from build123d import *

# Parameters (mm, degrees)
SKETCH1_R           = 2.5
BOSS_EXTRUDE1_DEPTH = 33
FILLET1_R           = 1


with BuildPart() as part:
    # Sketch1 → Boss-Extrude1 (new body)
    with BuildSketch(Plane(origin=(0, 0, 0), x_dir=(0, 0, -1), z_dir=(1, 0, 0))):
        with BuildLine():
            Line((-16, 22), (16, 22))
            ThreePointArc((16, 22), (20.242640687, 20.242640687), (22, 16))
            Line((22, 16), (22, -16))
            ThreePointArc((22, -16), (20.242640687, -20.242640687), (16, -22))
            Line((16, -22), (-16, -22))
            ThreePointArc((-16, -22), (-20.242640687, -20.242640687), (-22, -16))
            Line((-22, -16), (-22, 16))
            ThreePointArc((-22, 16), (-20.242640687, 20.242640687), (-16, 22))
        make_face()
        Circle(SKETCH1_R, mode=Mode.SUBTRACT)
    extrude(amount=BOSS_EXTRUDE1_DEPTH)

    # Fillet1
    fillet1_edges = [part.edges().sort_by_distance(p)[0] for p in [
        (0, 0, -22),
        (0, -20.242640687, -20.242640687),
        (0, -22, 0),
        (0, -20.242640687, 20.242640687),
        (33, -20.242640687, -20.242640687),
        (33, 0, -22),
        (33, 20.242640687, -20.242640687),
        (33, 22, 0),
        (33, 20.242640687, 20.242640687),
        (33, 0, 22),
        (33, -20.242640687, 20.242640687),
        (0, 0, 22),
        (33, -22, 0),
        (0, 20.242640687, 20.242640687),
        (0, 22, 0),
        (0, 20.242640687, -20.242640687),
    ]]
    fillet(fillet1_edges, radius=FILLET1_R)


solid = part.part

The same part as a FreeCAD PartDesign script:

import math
import FreeCAD as App
import Part
import Sketcher
from FreeCAD import Vector
Q = App.Units.Quantity


def edges_at(feature, points):
    """Names of the edges that pass closest to the given points."""
    edges = feature.Shape.Edges
    near = lambda p: min(range(len(edges)), key=lambda i: edges[i].distToShape(Part.Vertex(*p))[0])
    return sorted({f"Edge{near(p) + 1}" for p in points})

doc = App.newDocument("Part")
body = doc.addObject("PartDesign::Body", "Body")

# Sketch on YZ plane
sketch1 = doc.addObject("Sketcher::SketchObject", "Sketch")
body.addObject(sketch1)
sketch1.AttachmentSupport = (doc.YZ_Plane, [""])
sketch1.MapMode = "FlatFace"
sketch1.addGeometry([
    Part.LineSegment(Vector(22, -16, 0), Vector(22, 16, 0)),  # 0
    Part.ArcOfCircle(Part.Circle(Vector(16, 16, 0), Vector(0, 0, 1), 6), math.radians(0), math.radians(90)),  # 1
    Part.LineSegment(Vector(16, 22, 0), Vector(-16, 22, 0)),  # 2
    Part.ArcOfCircle(Part.Circle(Vector(-16, 16, 0), Vector(0, 0, 1), 6), math.radians(90), math.radians(180)),  # 3
    Part.LineSegment(Vector(-22, 16, 0), Vector(-22, -16, 0)),  # 4
    Part.ArcOfCircle(Part.Circle(Vector(-16, -16, 0), Vector(0, 0, 1), 6), math.radians(180), math.radians(270)),  # 5
    Part.LineSegment(Vector(-16, -22, 0), Vector(16, -22, 0)),  # 6
    Part.ArcOfCircle(Part.Circle(Vector(16, -16, 0), Vector(0, 0, 1), 6), math.radians(-90), math.radians(0)),  # 7
    Part.Circle(Vector(0, 0, 0), Vector(0, 0, 1), 2.5),  # 8
], False)
sketch1.addConstraint([
    Sketcher.Constraint("Tangent", 0, 2, 1, 1),
    Sketcher.Constraint("Tangent", 1, 2, 2, 1),
    Sketcher.Constraint("Tangent", 2, 2, 3, 1),
    Sketcher.Constraint("Tangent", 3, 2, 4, 1),
    Sketcher.Constraint("Tangent", 4, 2, 5, 1),
    Sketcher.Constraint("Tangent", 5, 2, 6, 1),
    Sketcher.Constraint("Tangent", 6, 2, 7, 1),
    Sketcher.Constraint("Tangent", 7, 2, 0, 1),
    Sketcher.Constraint("Vertical", 0),
    Sketcher.Constraint("Horizontal", 2),
    Sketcher.Constraint("Vertical", 4),
    Sketcher.Constraint("Horizontal", 6),
    Sketcher.Constraint("Coincident", 8, 3, -1, 1),
    Sketcher.Constraint("Equal", 1, 3),
    Sketcher.Constraint("Equal", 3, 5),
    Sketcher.Constraint("Equal", 5, 7),
    Sketcher.Constraint("Symmetric", 1, 3, 5, 3, -1, 1),
    Sketcher.Constraint("Equal", 6, 0),
    Sketcher.Constraint("Diameter", 8, Q("5 mm")),
    Sketcher.Constraint("Radius", 1, Q("6 mm")),
    Sketcher.Constraint("DistanceX", 2, 2, 2, 1, Q("32 mm")),
])
pad1 = doc.addObject("PartDesign::Pad", "Pad")
body.addObject(pad1)
pad1.Profile = sketch1
pad1.Length = 33
doc.recompute()

fillet = doc.addObject("PartDesign::Fillet", "Fillet")
body.addObject(fillet)
fillet.Base = (pad1, edges_at(pad1, [
    (0, 0, -22),
    (0, -20.243, -20.243),
    (0, -22, 0),
    (0, -20.243, 20.243),
    (33, -20.243, -20.243),
    (33, 0, -22),
    (33, 20.243, -20.243),
    (33, 22, 0),
    (33, 20.243, 20.243),
    (33, 0, 22),
    (33, -20.243, 20.243),
    (0, 0, 22),
    (33, -22, 0),
    (0, 20.243, 20.243),
    (0, 22, 0),
    (0, 20.243, -20.243),
]))
fillet.Radius = 1

doc.recompute()
